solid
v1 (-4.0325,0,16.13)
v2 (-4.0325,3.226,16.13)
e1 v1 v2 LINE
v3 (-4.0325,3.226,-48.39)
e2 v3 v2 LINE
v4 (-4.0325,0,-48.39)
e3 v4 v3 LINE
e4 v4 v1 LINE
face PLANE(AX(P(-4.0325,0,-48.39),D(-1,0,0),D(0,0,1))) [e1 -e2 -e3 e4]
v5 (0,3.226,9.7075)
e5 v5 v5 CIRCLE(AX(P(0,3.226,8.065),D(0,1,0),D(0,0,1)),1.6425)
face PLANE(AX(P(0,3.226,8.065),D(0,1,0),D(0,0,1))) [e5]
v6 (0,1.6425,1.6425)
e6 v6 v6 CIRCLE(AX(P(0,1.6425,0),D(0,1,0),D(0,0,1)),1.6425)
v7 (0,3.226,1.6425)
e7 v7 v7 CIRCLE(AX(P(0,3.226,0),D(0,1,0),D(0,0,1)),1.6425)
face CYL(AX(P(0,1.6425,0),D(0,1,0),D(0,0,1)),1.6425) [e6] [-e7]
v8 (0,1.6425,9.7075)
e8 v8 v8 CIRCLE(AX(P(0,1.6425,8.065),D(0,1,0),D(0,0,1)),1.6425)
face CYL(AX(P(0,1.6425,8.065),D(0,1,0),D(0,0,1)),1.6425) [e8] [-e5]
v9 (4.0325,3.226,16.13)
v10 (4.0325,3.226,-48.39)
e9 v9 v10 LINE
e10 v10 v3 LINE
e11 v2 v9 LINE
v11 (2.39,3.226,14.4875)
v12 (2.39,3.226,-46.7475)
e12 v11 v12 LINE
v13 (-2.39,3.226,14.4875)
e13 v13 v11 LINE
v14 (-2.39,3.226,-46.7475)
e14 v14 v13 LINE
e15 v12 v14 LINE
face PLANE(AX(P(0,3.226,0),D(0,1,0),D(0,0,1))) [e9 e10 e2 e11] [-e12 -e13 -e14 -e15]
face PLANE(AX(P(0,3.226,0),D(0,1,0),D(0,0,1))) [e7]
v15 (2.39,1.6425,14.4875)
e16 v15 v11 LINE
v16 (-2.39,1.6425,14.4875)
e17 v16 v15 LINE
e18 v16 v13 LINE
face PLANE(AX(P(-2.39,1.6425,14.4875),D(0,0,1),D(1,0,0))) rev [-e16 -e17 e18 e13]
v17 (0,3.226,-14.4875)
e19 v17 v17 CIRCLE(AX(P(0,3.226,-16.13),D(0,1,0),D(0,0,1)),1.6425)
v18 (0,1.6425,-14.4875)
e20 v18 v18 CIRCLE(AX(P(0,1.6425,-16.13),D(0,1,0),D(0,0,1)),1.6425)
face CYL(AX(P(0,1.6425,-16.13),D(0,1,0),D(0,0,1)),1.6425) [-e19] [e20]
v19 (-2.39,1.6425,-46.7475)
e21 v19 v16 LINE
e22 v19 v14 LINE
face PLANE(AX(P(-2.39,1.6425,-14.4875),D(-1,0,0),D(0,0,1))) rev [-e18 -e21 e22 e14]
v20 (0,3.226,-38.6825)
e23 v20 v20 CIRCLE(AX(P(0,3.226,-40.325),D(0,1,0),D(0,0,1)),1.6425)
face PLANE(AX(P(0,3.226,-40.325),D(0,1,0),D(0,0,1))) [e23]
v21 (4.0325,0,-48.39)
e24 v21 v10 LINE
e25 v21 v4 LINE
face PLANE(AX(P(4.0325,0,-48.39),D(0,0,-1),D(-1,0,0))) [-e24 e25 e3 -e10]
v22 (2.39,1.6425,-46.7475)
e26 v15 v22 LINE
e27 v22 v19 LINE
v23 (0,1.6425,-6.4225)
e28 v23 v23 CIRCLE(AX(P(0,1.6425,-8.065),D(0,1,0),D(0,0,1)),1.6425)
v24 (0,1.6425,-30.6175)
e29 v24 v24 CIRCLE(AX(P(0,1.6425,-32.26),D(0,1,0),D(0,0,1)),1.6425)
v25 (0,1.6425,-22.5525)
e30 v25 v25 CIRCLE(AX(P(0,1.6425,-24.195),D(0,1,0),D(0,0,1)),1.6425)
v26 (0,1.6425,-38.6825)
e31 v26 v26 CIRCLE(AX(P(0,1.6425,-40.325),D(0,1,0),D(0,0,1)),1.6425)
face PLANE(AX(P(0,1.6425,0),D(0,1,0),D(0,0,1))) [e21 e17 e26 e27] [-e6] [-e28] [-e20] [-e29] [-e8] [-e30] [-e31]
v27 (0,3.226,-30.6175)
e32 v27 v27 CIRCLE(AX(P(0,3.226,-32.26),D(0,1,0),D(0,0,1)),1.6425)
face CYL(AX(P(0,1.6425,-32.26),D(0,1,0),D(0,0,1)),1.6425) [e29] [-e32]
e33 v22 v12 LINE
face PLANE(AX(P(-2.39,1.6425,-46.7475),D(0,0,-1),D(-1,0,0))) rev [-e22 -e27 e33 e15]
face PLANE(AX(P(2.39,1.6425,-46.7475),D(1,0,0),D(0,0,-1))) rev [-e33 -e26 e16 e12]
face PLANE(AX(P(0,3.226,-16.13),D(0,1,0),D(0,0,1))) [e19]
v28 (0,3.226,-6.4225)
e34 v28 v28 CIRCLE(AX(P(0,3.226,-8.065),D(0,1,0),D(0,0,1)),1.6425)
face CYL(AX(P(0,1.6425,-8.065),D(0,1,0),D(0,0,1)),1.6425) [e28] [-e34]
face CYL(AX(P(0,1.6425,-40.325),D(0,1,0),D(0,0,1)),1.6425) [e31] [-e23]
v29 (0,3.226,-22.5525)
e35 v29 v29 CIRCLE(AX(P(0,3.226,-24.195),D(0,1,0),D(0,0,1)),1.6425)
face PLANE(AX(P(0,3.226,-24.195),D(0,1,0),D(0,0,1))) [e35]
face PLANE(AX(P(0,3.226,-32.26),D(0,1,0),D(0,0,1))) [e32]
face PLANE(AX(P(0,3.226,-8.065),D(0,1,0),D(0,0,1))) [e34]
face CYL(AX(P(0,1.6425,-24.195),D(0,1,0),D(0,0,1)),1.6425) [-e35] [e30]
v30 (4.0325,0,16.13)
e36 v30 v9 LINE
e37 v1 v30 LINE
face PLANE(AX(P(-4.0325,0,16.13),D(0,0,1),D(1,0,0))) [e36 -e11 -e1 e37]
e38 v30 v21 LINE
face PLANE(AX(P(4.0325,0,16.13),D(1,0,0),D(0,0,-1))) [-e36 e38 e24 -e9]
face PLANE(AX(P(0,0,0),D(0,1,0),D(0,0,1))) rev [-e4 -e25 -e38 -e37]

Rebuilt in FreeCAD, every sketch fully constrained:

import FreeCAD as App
import Part
import Sketcher
Q = App.Units.Quantity


def add_polygon(sketch, points):
    """Adds a closed chain of lines whose ends are joined by coincident constraints."""
    first, n = sketch.GeometryCount, len(points)
    for a, b in zip(points, points[1:] + points[:1]):
        sketch.addGeometry(Part.LineSegment(App.Vector(*a, 0), App.Vector(*b, 0)), False)
    for i in range(n):
        sketch.addConstraint(Sketcher.Constraint("Coincident", first + i, 2, first + (i + 1) % n, 1))

doc = App.newDocument("Part")
body = doc.addObject("PartDesign::Body", "Body")

# Sketch on XZ plane
sketch1 = body.newObject("Sketcher::SketchObject", "Sketch")
sketch1.AttachmentSupport = (doc.getObject("XZ_Plane"), [""])
sketch1.MapMode = "FlatFace"
sketch1.AttachmentOffset = App.Placement(App.Vector(0, 0, -3.226), App.Rotation())
add_polygon(sketch1, [(-4.0325, -48.39), (-4.0325, 16.13), (4.0325, 16.13), (4.0325, -48.39)])  # lines 0-3
sketch1.addConstraint(Sketcher.Constraint("Vertical", 0))
sketch1.addConstraint(Sketcher.Constraint("Horizontal", 1))
sketch1.addConstraint(Sketcher.Constraint("Vertical", 2))
sketch1.addConstraint(Sketcher.Constraint("Horizontal", 3))
sketch1.addConstraint(Sketcher.Constraint("DistanceY", 0, 1, 0, 2, Q("64.52 mm")))
sketch1.addConstraint(Sketcher.Constraint("DistanceX", 1, 1, 1, 2, Q("8.065 mm")))
sketch1.addConstraint(Sketcher.Constraint("DistanceY", -1, 1, 0, 2, Q("16.13 mm")))
sketch1.addConstraint(Sketcher.Constraint("DistanceX", 0, 2, -1, 1, Q("4.0325 mm")))
pad1 = body.newObject("PartDesign::Pad", "Pad")
pad1.Profile = sketch1
pad1.Length = 3.226

# Sketch on XZ plane
sketch2 = body.newObject("Sketcher::SketchObject", "Sketch001")
sketch2.AttachmentSupport = (doc.getObject("XZ_Plane"), [""])
sketch2.MapMode = "FlatFace"
sketch2.AttachmentOffset = App.Placement(App.Vector(0, 0, -3.226), App.Rotation())
add_polygon(sketch2, [(-2.39, 14.4875), (2.39, 14.4875), (2.39, -46.7475), (-2.39, -46.7475)])  # lines 0-3
sketch2.addConstraint(Sketcher.Constraint("Horizontal", 0))
sketch2.addConstraint(Sketcher.Constraint("Vertical", 1))
sketch2.addConstraint(Sketcher.Constraint("Horizontal", 2))
sketch2.addConstraint(Sketcher.Constraint("Vertical", 3))
sketch2.addConstraint(Sketcher.Constraint("DistanceX", 0, 1, 0, 2, Q("4.78 mm")))
sketch2.addConstraint(Sketcher.Constraint("DistanceY", 1, 2, 1, 1, Q("61.235 mm")))
sketch2.addConstraint(Sketcher.Constraint("DistanceX", -1, 1, 0, 2, Q("2.39 mm")))
sketch2.addConstraint(Sketcher.Constraint("DistanceY", -1, 1, 0, 2, Q("14.4875 mm")))
pocket1 = body.newObject("PartDesign::Pocket", "Pocket")
pocket1.Profile = sketch2
pocket1.Length = 1.5835
pocket1.Reversed = True

# Sketch on XY plane
sketch3 = body.newObject("Sketcher::SketchObject", "Sketch002")
sketch3.AttachmentSupport = (doc.getObject("XY_Plane"), [""])
sketch3.MapMode = "FlatFace"
sketch3.AttachmentOffset = App.Placement(App.Vector(0, 0, -8.065), App.Rotation())
add_polygon(sketch3, [(1.6425, 3.226), (1.6425, 1.6425), (0, 1.6425), (0, 3.226)])  # lines 0-3
sketch3.addConstraint(Sketcher.Constraint("Vertical", 0))
sketch3.addConstraint(Sketcher.Constraint("Horizontal", 1))
sketch3.addConstraint(Sketcher.Constraint("Vertical", 2))
sketch3.addConstraint(Sketcher.Constraint("Horizontal", 3))
sketch3.addConstraint(Sketcher.Constraint("PointOnObject", 1, 2, -2))
sketch3.addConstraint(Sketcher.Constraint("DistanceX", 1, 2, 1, 1, Q("1.6425 mm")))
sketch3.addConstraint(Sketcher.Constraint("DistanceY", 0, 2, 0, 1, Q("1.5835 mm")))
sketch3.addConstraint(Sketcher.Constraint("DistanceY", -1, 1, 2, 2, Q("3.226 mm")))
revolution = body.newObject("PartDesign::Revolution", "Revolution")
revolution.Profile = sketch3
revolution.ReferenceAxis = (sketch3, ["V_Axis"])
revolution.Angle = 360

# Sketch on XY plane
sketch4 = body.newObject("Sketcher::SketchObject", "Sketch003")
sketch4.AttachmentSupport = (doc.getObject("XY_Plane"), [""])
sketch4.MapMode = "FlatFace"
add_polygon(sketch4, [(1.6425, 3.226), (1.6425, 1.6425), (0, 1.6425), (0, 3.226)])  # lines 0-3
sketch4.addConstraint(Sketcher.Constraint("Vertical", 0))
sketch4.addConstraint(Sketcher.Constraint("Horizontal", 1))
sketch4.addConstraint(Sketcher.Constraint("Vertical", 2))
sketch4.addConstraint(Sketcher.Constraint("Horizontal", 3))
sketch4.addConstraint(Sketcher.Constraint("PointOnObject", 1, 2, -2))
sketch4.addConstraint(Sketcher.Constraint("DistanceX", 1, 2, 1, 1, Q("1.6425 mm")))
sketch4.addConstraint(Sketcher.Constraint("DistanceY", 0, 2, 0, 1, Q("1.5835 mm")))
sketch4.addConstraint(Sketcher.Constraint("DistanceY", -1, 1, 2, 2, Q("3.226 mm")))
revolution2 = body.newObject("PartDesign::Revolution", "Revolution001")
revolution2.Profile = sketch4
revolution2.ReferenceAxis = (sketch4, ["V_Axis"])
revolution2.Angle = 360

# Sketch on XY plane
sketch5 = body.newObject("Sketcher::SketchObject", "Sketch004")
sketch5.AttachmentSupport = (doc.getObject("XY_Plane"), [""])
sketch5.MapMode = "FlatFace"
sketch5.AttachmentOffset = App.Placement(App.Vector(0, 0, 8.065), App.Rotation())
add_polygon(sketch5, [(1.6425, 3.226), (1.6425, 1.6425), (0, 1.6425), (0, 3.226)])  # lines 0-3
sketch5.addConstraint(Sketcher.Constraint("Vertical", 0))
sketch5.addConstraint(Sketcher.Constraint("Horizontal", 1))
sketch5.addConstraint(Sketcher.Constraint("Vertical", 2))
sketch5.addConstraint(Sketcher.Constraint("Horizontal", 3))
sketch5.addConstraint(Sketcher.Constraint("PointOnObject", 1, 2, -2))
sketch5.addConstraint(Sketcher.Constraint("DistanceX", 1, 2, 1, 1, Q("1.6425 mm")))
sketch5.addConstraint(Sketcher.Constraint("DistanceY", 0, 2, 0, 1, Q("1.5835 mm")))
sketch5.addConstraint(Sketcher.Constraint("DistanceY", -1, 1, 2, 2, Q("3.226 mm")))
revolution3 = body.newObject("PartDesign::Revolution", "Revolution002")
revolution3.Profile = sketch5
revolution3.ReferenceAxis = (sketch5, ["V_Axis"])
revolution3.Angle = 360
doc.recompute()

linearpattern = body.newObject("PartDesign::LinearPattern", "LinearPattern")
linearpattern.Originals = [revolution]
linearpattern.Direction = (doc.getObject("Z_Axis"), [""])
linearpattern.Mode = "offset"
linearpattern.Offset = 8.065
linearpattern.Occurrences = 5
linearpattern.Reversed = True
body.Tip = linearpattern

doc.recompute()
